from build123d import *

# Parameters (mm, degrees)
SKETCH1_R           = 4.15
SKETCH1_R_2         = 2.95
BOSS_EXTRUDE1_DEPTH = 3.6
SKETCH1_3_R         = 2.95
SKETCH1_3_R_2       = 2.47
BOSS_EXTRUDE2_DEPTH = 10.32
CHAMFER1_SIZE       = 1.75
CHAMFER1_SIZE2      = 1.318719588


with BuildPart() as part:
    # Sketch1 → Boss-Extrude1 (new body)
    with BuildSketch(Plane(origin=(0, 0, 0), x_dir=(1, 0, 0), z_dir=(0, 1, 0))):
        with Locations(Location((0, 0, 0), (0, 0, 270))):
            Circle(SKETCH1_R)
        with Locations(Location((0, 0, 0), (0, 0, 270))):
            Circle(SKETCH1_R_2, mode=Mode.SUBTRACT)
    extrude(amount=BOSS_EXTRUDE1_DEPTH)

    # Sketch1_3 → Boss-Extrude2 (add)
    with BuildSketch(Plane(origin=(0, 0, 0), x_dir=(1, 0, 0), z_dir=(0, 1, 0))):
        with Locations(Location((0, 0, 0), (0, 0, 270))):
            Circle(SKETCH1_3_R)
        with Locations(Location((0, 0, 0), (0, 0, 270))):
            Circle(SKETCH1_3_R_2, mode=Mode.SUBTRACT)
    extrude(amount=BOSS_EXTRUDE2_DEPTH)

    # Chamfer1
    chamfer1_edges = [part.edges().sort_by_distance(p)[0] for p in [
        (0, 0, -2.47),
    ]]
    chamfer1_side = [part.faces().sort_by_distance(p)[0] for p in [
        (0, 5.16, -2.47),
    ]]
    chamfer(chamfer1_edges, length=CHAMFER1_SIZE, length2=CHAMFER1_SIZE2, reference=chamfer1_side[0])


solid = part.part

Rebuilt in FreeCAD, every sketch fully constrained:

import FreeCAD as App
import Part
import Sketcher
Q = App.Units.Quantity


def edges_at(feature, points):
    """Names of the edges that pass closest to the given points."""
    edges = feature.Shape.Edges
    near = lambda p: min(range(len(edges)), key=lambda i: edges[i].distToShape(Part.Vertex(*p))[0])
    return sorted({f"Edge{near(p) + 1}" for p in points})

doc = App.newDocument("Part")
body = doc.addObject("PartDesign::Body", "Body")

# Sketch on XZ plane
sketch1 = doc.addObject("Sketcher::SketchObject", "Sketch")
body.addObject(sketch1)
sketch1.AttachmentSupport = (doc.XZ_Plane, [""])
sketch1.MapMode = "FlatFace"
sketch1.addGeometry([
    Part.Circle(App.Vector(0, 0, 0), App.Vector(0, 0, 1), 4.2),
    Part.Circle(App.Vector(0, 0, 0), App.Vector(0, 0, 1), 3),
], False)
sketch1.addConstraint([
    Sketcher.Constraint("Coincident", 0, 3, -1, 1),
    Sketcher.Constraint("Coincident", 1, 3, -1, 1),
    Sketcher.Constraint("Diameter", 0, Q("8.3 mm")),
    Sketcher.Constraint("Diameter", 1, Q("5.9 mm")),
])
pad1 = doc.addObject("PartDesign::Pad", "Pad")
body.addObject(pad1)
pad1.Profile = sketch1
pad1.Length = 3.6
pad1.Reversed = True

# Sketch on XZ plane
sketch2 = doc.addObject("Sketcher::SketchObject", "Sketch001")
body.addObject(sketch2)
sketch2.AttachmentSupport = (doc.XZ_Plane, [""])
sketch2.MapMode = "FlatFace"
sketch2.addGeometry([
    Part.Circle(App.Vector(0, 0, 0), App.Vector(0, 0, 1), 3),
    Part.Circle(App.Vector(0, 0, 0), App.Vector(0, 0, 1), 2.5),
], False)
sketch2.addConstraint([
    Sketcher.Constraint("Coincident", 0, 3, -1, 1),
    Sketcher.Constraint("Coincident", 1, 3, -1, 1),
    Sketcher.Constraint("Diameter", 0, Q("5.9 mm")),
    Sketcher.Constraint("Diameter", 1, Q("4.94 mm")),
])
pad2 = doc.addObject("PartDesign::Pad", "Pad001")
body.addObject(pad2)
pad2.Profile = sketch2
pad2.Length = 10.32
pad2.Reversed = True
doc.recompute()

chamfer = doc.addObject("PartDesign::Chamfer", "Chamfer")
body.addObject(chamfer)
chamfer.Base = (pad2, edges_at(pad2, [(0, 0, -2.47)]))
chamfer.ChamferType = "Two distances"
chamfer.Size = 1.75
chamfer.Size2 = 1.31872

doc.recompute()
